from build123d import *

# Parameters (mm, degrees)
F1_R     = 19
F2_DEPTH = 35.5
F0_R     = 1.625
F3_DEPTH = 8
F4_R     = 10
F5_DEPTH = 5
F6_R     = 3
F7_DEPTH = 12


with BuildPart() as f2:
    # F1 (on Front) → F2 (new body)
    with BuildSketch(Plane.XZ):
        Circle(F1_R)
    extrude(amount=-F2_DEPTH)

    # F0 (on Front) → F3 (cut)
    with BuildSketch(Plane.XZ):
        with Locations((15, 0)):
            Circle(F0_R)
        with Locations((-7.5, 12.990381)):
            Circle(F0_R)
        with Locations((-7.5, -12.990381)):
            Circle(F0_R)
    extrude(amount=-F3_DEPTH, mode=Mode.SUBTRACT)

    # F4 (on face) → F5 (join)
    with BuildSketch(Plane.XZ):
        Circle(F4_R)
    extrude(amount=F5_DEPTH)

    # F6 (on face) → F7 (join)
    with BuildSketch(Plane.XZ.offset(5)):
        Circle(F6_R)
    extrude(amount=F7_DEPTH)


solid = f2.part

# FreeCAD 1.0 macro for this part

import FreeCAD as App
import Part
import Sketcher
from FreeCAD import Vector

doc = App.newDocument("Part")
body = doc.addObject("PartDesign::Body", "Body")

# Sketch on XZ plane
sketch1 = body.newObject("Sketcher::SketchObject", "Sketch")
sketch1.AttachmentSupport = (doc.getObject("XZ_Plane"), [""])
sketch1.MapMode = "FlatFace"
sketch1.addGeometry(Part.Circle(Vector(0, 0, 0), Vector(0, 0, 1), 19), False)
sketch1.addConstraint(Sketcher.Constraint("Coincident", 0, 3, -1, 1))
sketch1.addConstraint(Sketcher.Constraint("Diameter", 0, 38.0))
pad1 = body.newObject("PartDesign::Pad", "Pad")
pad1.Profile = sketch1
pad1.Length = 35.5
pad1.Reversed = True

# Sketch on XZ plane
sketch2 = body.newObject("Sketcher::SketchObject", "Sketch001")
sketch2.AttachmentSupport = (doc.getObject("XZ_Plane"), [""])
sketch2.MapMode = "FlatFace"
sketch2.addGeometry(Part.Circle(Vector(15, 0, 0), Vector(0, 0, 1), 1.6), False)
sketch2.addGeometry(Part.Circle(Vector(-7.5, 13, 0), Vector(0, 0, 1), 1.6), False)
sketch2.addGeometry(Part.Circle(Vector(-7.5, -13, 0), Vector(0, 0, 1), 1.6), False)
sketch2.addConstraint(Sketcher.Constraint("Equal", 0, 1))
sketch2.addConstraint(Sketcher.Constraint("Equal", 1, 2))
sketch2.addConstraint(Sketcher.Constraint("Symmetric", 1, 3, 2, 3, -1))
sketch2.addConstraint(Sketcher.Constraint("PointOnObject", 0, 3, -1))
sketch2.addConstraint(Sketcher.Constraint("Diameter", 0, 3.25))
sketch2.addConstraint(Sketcher.Constraint("DistanceX", -1, 1, 0, 3, 15.0))
sketch2.addConstraint(Sketcher.Constraint("DistanceX", 1, 3, -1, 1, 7.5))
sketch2.addConstraint(Sketcher.Constraint("DistanceY", -1, 1, 1, 3, 12.990381))
pocket1 = body.newObject("PartDesign::Pocket", "Pocket")
pocket1.Profile = sketch2
pocket1.Length = 8

# Sketch on XZ plane
sketch3 = body.newObject("Sketcher::SketchObject", "Sketch002")
sketch3.AttachmentSupport = (doc.getObject("XZ_Plane"), [""])
sketch3.MapMode = "FlatFace"
sketch3.addGeometry(Part.Circle(Vector(0, 0, 0), Vector(0, 0, 1), 10), False)
sketch3.addConstraint(Sketcher.Constraint("Coincident", 0, 3, -1, 1))
sketch3.addConstraint(Sketcher.Constraint("Diameter", 0, 20.0))
pad2 = body.newObject("PartDesign::Pad", "Pad001")
pad2.Profile = sketch3
pad2.Length = 5

# Sketch on XZ plane
sketch4 = body.newObject("Sketcher::SketchObject", "Sketch003")
sketch4.AttachmentSupport = (doc.getObject("XZ_Plane"), [""])
sketch4.MapMode = "FlatFace"
sketch4.AttachmentOffset = App.Placement(Vector(0, 0, 5), App.Rotation())
sketch4.addGeometry(Part.Circle(Vector(0, 0, 0), Vector(0, 0, 1), 3), False)
sketch4.addConstraint(Sketcher.Constraint("Coincident", 0, 3, -1, 1))
sketch4.addConstraint(Sketcher.Constraint("Diameter", 0, 6.0))
pad3 = body.newObject("PartDesign::Pad", "Pad002")
pad3.Profile = sketch4
pad3.Length = 12

doc.recompute()
